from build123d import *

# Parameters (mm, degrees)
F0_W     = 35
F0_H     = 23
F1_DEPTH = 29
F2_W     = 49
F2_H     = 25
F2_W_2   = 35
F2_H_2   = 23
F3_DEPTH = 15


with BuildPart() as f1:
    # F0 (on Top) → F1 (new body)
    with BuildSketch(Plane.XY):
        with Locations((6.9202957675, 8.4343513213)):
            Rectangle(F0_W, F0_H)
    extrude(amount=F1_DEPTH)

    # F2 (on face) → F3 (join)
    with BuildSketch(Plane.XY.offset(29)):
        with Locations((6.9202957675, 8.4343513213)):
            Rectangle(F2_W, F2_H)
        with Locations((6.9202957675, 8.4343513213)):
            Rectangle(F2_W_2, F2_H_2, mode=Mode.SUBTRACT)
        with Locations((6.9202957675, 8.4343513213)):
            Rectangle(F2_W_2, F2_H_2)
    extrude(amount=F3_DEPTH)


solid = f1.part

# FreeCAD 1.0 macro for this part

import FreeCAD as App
import Part
import Sketcher

doc = App.newDocument("Part")
body = doc.addObject("PartDesign::Body", "Body")

# Sketch on XY plane
sketch1 = doc.addObject("Sketcher::SketchObject", "Sketch")
body.addObject(sketch1)
sketch1.AttachmentSupport = (doc.XY_Plane, [""])
sketch1.MapMode = "FlatFace"
sketch1.addGeometry([
    Part.LineSegment(App.Vector(-10.579704, 19.934351, 0), App.Vector(-10.579704, -3.065649, 0)),
    Part.LineSegment(App.Vector(-10.579704, -3.065649, 0), App.Vector(24.420296, -3.065649, 0)),
    Part.LineSegment(App.Vector(24.420296, -3.065649, 0), App.Vector(24.420296, 19.934351, 0)),
    Part.LineSegment(App.Vector(24.420296, 19.934351, 0), App.Vector(-10.579704, 19.934351, 0)),
], False)
sketch1.addConstraint([
    Sketcher.Constraint("Coincident", 0, 2, 1, 1),
    Sketcher.Constraint("Coincident", 1, 2, 2, 1),
    Sketcher.Constraint("Coincident", 2, 2, 3, 1),
    Sketcher.Constraint("Coincident", 3, 2, 0, 1),
    Sketcher.Constraint("Vertical", 0),
    Sketcher.Constraint("Horizontal", 1),
    Sketcher.Constraint("Vertical", 2),
    Sketcher.Constraint("Horizontal", 3),
    Sketcher.Constraint("DistanceX", 1, 1, 1, 2, 35.0),
    Sketcher.Constraint("DistanceY", 0, 2, 0, 1, 23.0),
    Sketcher.Constraint("DistanceY", 0, 2, -1, 1, 3.065649),
    Sketcher.Constraint("DistanceX", 0, 2, -1, 1, 10.579704),
])
pad1 = doc.addObject("PartDesign::Pad", "Pad")
body.addObject(pad1)
pad1.Profile = sketch1
pad1.Length = 29

# Sketch on XY plane
sketch2 = doc.addObject("Sketcher::SketchObject", "Sketch001")
body.addObject(sketch2)
sketch2.AttachmentSupport = (doc.XY_Plane, [""])
sketch2.MapMode = "FlatFace"
sketch2.AttachmentOffset = App.Placement(App.Vector(0, 0, 29), App.Rotation())
sketch2.addGeometry([
    Part.LineSegment(App.Vector(-17.579704, 20.934351, 0), App.Vector(-17.579704, -4.065649, 0)),
    Part.LineSegment(App.Vector(-17.579704, -4.065649, 0), App.Vector(31.420296, -4.065649, 0)),
    Part.LineSegment(App.Vector(31.420296, -4.065649, 0), App.Vector(31.420296, 20.934351, 0)),
    Part.LineSegment(App.Vector(31.420296, 20.934351, 0), App.Vector(-17.579704, 20.934351, 0)),
], False)
sketch2.addConstraint([
    Sketcher.Constraint("Coincident", 0, 2, 1, 1),
    Sketcher.Constraint("Coincident", 1, 2, 2, 1),
    Sketcher.Constraint("Coincident", 2, 2, 3, 1),
    Sketcher.Constraint("Coincident", 3, 2, 0, 1),
    Sketcher.Constraint("Vertical", 0),
    Sketcher.Constraint("Horizontal", 1),
    Sketcher.Constraint("Vertical", 2),
    Sketcher.Constraint("Horizontal", 3),
    Sketcher.Constraint("DistanceX", 1, 1, 1, 2, 49.0),
    Sketcher.Constraint("DistanceY", 0, 2, 0, 1, 25.0),
    Sketcher.Constraint("DistanceY", 0, 2, -1, 1, 4.065649),
    Sketcher.Constraint("DistanceX", 0, 2, -1, 1, 17.579704),
])
pad2 = doc.addObject("PartDesign::Pad", "Pad001")
body.addObject(pad2)
pad2.Profile = sketch2
pad2.Length = 15

doc.recompute()
